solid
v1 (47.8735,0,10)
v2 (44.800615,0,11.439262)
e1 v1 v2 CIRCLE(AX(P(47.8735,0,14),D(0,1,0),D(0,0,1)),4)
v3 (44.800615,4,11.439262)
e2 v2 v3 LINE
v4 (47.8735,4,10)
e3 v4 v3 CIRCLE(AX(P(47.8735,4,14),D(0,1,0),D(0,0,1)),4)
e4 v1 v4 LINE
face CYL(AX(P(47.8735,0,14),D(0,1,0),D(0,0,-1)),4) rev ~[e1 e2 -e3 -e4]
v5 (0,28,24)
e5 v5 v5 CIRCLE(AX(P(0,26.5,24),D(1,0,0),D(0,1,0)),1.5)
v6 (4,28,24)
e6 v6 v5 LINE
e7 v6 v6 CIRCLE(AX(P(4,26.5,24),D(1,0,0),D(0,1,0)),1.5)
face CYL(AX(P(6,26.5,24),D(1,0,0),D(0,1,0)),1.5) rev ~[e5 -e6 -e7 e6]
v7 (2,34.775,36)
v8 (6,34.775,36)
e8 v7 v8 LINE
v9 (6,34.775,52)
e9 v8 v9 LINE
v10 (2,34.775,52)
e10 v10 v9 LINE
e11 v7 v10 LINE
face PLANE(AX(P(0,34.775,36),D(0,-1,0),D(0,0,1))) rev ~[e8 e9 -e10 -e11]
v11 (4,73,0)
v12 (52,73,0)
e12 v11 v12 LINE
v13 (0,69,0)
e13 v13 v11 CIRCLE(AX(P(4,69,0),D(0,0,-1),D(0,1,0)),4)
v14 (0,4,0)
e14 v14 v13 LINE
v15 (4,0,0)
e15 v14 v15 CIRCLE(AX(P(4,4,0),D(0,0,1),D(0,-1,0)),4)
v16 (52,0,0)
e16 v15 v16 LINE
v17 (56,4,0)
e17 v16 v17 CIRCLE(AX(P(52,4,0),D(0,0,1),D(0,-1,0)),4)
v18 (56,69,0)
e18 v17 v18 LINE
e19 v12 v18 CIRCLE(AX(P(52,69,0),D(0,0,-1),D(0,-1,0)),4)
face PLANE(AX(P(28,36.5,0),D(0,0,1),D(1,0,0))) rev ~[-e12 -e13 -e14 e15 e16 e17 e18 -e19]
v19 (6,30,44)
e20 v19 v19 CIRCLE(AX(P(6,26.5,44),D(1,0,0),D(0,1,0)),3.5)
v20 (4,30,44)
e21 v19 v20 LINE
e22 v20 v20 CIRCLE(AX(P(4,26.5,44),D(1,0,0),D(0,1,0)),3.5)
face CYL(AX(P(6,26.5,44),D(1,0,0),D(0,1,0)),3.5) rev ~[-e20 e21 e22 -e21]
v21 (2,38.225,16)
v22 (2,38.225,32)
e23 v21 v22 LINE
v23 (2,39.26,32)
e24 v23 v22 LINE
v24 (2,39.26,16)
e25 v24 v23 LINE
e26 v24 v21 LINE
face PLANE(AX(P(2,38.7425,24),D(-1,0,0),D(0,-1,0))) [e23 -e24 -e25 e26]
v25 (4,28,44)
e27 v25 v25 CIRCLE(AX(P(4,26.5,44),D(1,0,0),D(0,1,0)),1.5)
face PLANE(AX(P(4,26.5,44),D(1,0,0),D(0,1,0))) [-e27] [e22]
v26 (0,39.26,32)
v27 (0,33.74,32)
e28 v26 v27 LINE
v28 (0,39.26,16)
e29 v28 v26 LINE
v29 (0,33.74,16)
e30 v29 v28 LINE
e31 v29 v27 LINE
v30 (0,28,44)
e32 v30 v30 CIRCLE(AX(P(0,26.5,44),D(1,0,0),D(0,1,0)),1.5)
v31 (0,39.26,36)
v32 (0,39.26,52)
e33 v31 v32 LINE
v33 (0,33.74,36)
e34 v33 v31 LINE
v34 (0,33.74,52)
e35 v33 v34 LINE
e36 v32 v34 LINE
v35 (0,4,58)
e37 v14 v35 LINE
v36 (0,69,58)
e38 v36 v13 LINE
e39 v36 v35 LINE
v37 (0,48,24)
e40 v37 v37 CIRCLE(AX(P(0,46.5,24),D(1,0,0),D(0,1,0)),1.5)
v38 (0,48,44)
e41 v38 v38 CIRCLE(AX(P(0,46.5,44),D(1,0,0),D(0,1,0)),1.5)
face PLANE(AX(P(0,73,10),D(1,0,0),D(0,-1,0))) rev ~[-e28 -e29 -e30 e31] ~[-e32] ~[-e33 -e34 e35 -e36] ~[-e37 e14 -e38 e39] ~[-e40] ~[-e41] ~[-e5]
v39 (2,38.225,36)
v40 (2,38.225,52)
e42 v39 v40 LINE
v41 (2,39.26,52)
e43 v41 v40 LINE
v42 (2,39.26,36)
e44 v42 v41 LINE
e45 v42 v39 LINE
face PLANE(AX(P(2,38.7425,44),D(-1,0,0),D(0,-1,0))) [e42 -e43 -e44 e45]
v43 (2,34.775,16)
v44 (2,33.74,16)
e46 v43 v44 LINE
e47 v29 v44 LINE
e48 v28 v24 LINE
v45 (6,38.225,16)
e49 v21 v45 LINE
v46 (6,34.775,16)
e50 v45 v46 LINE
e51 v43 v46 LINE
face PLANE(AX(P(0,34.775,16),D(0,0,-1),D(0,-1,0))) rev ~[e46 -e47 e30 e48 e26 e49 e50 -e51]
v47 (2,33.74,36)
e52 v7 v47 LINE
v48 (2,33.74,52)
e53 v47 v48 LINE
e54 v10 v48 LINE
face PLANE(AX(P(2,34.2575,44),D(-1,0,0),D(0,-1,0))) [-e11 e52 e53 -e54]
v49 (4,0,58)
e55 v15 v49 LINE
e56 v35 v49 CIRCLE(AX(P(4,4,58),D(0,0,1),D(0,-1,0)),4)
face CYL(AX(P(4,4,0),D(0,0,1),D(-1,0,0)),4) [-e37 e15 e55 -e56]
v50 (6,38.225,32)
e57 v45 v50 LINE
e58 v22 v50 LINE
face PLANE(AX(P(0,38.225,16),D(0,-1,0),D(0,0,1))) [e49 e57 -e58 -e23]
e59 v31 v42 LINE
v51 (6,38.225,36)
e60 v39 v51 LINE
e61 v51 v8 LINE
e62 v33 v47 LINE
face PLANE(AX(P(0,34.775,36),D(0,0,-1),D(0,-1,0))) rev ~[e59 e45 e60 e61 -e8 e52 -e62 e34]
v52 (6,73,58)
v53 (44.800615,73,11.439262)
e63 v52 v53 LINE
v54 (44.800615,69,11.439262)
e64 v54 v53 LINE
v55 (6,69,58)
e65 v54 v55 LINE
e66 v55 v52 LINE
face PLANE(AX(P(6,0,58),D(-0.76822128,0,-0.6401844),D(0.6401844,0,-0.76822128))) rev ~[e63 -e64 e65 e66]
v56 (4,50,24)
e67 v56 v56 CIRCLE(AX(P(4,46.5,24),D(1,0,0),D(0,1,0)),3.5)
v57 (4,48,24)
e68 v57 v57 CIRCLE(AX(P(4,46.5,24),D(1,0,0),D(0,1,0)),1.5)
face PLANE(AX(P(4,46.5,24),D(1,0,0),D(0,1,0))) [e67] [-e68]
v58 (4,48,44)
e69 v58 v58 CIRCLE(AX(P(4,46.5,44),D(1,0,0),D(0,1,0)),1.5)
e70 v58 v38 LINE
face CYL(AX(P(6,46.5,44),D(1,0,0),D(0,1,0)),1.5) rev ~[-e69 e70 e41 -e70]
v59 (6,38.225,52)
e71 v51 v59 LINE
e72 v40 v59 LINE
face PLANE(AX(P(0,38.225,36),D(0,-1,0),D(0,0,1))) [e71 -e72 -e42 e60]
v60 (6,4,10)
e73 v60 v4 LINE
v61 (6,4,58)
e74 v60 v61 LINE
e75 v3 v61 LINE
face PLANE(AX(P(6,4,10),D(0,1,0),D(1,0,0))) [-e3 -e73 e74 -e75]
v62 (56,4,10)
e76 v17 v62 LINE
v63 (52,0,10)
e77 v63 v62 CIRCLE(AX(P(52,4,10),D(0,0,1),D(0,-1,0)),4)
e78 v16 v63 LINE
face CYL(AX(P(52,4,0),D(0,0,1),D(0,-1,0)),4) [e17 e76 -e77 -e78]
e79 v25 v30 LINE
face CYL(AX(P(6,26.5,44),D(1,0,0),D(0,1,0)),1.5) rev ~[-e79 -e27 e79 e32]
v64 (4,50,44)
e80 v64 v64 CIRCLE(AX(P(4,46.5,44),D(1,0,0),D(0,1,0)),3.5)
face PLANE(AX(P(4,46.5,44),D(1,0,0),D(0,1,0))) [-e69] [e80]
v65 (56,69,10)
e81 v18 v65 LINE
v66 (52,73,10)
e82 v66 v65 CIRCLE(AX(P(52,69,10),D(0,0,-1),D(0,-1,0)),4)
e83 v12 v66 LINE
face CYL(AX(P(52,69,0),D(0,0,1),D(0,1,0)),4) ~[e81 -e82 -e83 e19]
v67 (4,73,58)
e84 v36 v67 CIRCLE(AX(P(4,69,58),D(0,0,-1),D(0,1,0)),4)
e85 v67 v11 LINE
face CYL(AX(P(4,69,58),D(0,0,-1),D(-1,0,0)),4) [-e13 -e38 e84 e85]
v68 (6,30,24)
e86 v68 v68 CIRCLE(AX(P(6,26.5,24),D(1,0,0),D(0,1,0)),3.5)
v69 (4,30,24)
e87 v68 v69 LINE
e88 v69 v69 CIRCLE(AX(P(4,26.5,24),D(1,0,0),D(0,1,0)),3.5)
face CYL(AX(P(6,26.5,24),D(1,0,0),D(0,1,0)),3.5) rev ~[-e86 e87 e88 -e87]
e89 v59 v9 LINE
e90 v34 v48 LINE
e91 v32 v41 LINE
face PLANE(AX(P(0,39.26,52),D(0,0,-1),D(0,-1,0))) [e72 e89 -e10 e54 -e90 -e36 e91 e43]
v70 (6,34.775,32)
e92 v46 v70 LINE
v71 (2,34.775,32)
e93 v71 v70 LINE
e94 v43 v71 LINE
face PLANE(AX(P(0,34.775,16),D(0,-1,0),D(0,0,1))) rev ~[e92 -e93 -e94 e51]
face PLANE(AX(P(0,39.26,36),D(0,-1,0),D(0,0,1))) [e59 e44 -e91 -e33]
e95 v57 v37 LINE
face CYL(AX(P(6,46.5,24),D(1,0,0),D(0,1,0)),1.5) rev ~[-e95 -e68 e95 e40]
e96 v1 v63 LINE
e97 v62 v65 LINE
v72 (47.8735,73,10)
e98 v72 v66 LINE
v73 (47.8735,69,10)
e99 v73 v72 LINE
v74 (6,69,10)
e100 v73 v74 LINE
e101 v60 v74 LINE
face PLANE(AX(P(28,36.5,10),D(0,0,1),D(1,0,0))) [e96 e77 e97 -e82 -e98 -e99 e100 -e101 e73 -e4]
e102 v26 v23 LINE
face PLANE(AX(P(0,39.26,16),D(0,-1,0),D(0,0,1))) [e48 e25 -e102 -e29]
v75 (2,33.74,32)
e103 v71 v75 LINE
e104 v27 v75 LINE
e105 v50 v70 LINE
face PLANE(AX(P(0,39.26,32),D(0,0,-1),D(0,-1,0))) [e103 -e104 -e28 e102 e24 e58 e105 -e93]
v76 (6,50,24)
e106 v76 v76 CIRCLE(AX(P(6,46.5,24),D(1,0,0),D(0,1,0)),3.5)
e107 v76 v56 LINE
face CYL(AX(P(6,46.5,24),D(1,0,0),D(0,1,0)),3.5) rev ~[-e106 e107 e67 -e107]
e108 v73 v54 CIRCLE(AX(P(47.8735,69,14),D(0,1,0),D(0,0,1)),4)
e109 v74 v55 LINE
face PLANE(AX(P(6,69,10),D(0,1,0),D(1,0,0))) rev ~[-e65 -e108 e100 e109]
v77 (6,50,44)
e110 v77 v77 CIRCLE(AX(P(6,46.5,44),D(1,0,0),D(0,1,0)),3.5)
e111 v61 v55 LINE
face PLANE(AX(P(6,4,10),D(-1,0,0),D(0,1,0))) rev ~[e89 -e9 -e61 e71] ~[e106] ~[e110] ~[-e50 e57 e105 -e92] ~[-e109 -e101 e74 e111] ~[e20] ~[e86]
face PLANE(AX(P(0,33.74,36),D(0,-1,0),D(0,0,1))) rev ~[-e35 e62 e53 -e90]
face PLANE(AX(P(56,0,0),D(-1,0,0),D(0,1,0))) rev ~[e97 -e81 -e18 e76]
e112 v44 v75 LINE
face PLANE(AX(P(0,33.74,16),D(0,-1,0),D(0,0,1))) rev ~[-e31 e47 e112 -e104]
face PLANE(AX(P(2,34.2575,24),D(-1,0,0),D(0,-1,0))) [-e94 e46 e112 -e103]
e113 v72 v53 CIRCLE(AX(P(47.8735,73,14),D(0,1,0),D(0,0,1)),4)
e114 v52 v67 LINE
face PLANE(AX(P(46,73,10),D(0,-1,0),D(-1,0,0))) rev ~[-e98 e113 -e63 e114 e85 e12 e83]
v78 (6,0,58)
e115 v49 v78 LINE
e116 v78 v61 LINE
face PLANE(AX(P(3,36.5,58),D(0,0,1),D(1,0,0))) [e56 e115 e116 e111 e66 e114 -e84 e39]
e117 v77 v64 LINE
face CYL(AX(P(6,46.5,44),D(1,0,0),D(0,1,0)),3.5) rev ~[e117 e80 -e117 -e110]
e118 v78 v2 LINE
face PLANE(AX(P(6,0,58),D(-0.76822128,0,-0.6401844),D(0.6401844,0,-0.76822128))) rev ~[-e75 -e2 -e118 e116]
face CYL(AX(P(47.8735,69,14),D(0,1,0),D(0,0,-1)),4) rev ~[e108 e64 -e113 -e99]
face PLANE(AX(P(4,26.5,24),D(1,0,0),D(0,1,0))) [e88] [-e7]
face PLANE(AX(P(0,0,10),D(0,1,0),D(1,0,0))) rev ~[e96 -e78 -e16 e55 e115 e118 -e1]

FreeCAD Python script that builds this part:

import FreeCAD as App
import Part
import Sketcher
from FreeCAD import Vector
Q = App.Units.Quantity


def edges_at(feature, points):
    """Names of the edges that pass closest to the given points."""
    edges = feature.Shape.Edges
    near = lambda p: min(range(len(edges)), key=lambda i: edges[i].distToShape(Part.Vertex(*p))[0])
    return sorted({f"Edge{near(p) + 1}" for p in points})

doc = App.newDocument("Part")
body = doc.addObject("PartDesign::Body", "Body")

sketch1 = body.newObject("Sketcher::SketchObject", "Sketch")
sketch1.AttachmentSupport = (doc.getObject("XY_Plane"), [""])
sketch1.MapMode = "FlatFace"
sketch1.addGeometry([
    Part.LineSegment(Vector(0, 73, 0), Vector(0, 0, 0)),
    Part.LineSegment(Vector(0, 0, 0), Vector(56, 0, 0)),
    Part.LineSegment(Vector(56, 0, 0), Vector(56, 73, 0)),
    Part.LineSegment(Vector(56, 73, 0), Vector(0, 73, 0)),
], False)
sketch1.addConstraint([
    Sketcher.Constraint("Coincident", 0, 2, 1, 1),
    Sketcher.Constraint("Coincident", 1, 2, 2, 1),
    Sketcher.Constraint("Coincident", 2, 2, 3, 1),
    Sketcher.Constraint("Coincident", 3, 2, 0, 1),
    Sketcher.Constraint("Vertical", 0),
    Sketcher.Constraint("Horizontal", 1),
    Sketcher.Constraint("Vertical", 2),
    Sketcher.Constraint("Horizontal", 3),
    Sketcher.Constraint("Coincident", 0, 2, -1, 1),
    Sketcher.Constraint("DistanceX", 1, 1, 1, 2, Q("56 mm")),
    Sketcher.Constraint("DistanceY", 0, 2, 0, 1, Q("73 mm")),
])
pad1 = body.newObject("PartDesign::Pad", "Pad")
pad1.Profile = sketch1
pad1.Length = 10

sketch2 = body.newObject("Sketcher::SketchObject", "Sketch001")
sketch2.AttachmentSupport = (doc.getObject("XY_Plane"), [""])
sketch2.MapMode = "FlatFace"
sketch2.AttachmentOffset = App.Placement(Vector(0, 0, 10), App.Rotation())
sketch2.addGeometry([
    Part.LineSegment(Vector(0, 73, 0), Vector(0, 0, 0)),
    Part.LineSegment(Vector(0, 0, 0), Vector(46, 0, 0)),
    Part.LineSegment(Vector(46, 0, 0), Vector(46, 4, 0)),
    Part.LineSegment(Vector(46, 4, 0), Vector(6, 4, 0)),
    Part.LineSegment(Vector(6, 4, 0), Vector(6, 69, 0)),
    Part.LineSegment(Vector(6, 69, 0), Vector(46, 69, 0)),
    Part.LineSegment(Vector(46, 69, 0), Vector(46, 73, 0)),
    Part.LineSegment(Vector(46, 73, 0), Vector(0, 73, 0)),
], False)
sketch2.addConstraint([
    Sketcher.Constraint("Coincident", 0, 2, 1, 1),
    Sketcher.Constraint("Coincident", 1, 2, 2, 1),
    Sketcher.Constraint("Coincident", 2, 2, 3, 1),
    Sketcher.Constraint("Coincident", 3, 2, 4, 1),
    Sketcher.Constraint("Coincident", 4, 2, 5, 1),
    Sketcher.Constraint("Coincident", 5, 2, 6, 1),
    Sketcher.Constraint("Coincident", 6, 2, 7, 1),
    Sketcher.Constraint("Coincident", 7, 2, 0, 1),
    Sketcher.Constraint("Vertical", 0),
    Sketcher.Constraint("Horizontal", 1),
    Sketcher.Constraint("Vertical", 2),
    Sketcher.Constraint("Horizontal", 3),
    Sketcher.Constraint("Vertical", 4),
    Sketcher.Constraint("Horizontal", 5),
    Sketcher.Constraint("Vertical", 6),
    Sketcher.Constraint("Horizontal", 7),
    Sketcher.Constraint("Coincident", 0, 2, -1, 1),
    Sketcher.Constraint("Vertical", 2, 2, 5, 2),
    Sketcher.Constraint("Equal", 2, 6),
    Sketcher.Constraint("DistanceX", 1, 1, 1, 2, Q("46 mm")),
    Sketcher.Constraint("DistanceX", 3, 2, 3, 1, Q("40 mm")),
    Sketcher.Constraint("DistanceY", 0, 2, 0, 1, Q("73 mm")),
    Sketcher.Constraint("DistanceY", 2, 1, 2, 2, Q("4 mm")),
])
pad2 = body.newObject("PartDesign::Pad", "Pad001")
pad2.Profile = sketch2
pad2.Length = 48

sketch3 = body.newObject("Sketcher::SketchObject", "Sketch002")
sketch3.AttachmentSupport = (doc.getObject("XZ_Plane"), [""])
sketch3.MapMode = "FlatFace"
sketch3.addGeometry([
    Part.LineSegment(Vector(6, 58, 0), Vector(46, 10, 0)),
    Part.LineSegment(Vector(46, 10, 0), Vector(46, 58, 0)),
    Part.LineSegment(Vector(46, 58, 0), Vector(6, 58, 0)),
], False)
sketch3.addConstraint([
    Sketcher.Constraint("Coincident", 0, 2, 1, 1),
    Sketcher.Constraint("Coincident", 1, 2, 2, 1),
    Sketcher.Constraint("Coincident", 2, 2, 0, 1),
    Sketcher.Constraint("Vertical", 1),
    Sketcher.Constraint("Horizontal", 2),
    Sketcher.Constraint("DistanceX", 2, 2, 2, 1, Q("40 mm")),
    Sketcher.Constraint("DistanceY", 1, 1, 1, 2, Q("48 mm")),
    Sketcher.Constraint("DistanceX", -1, 1, 0, 2, Q("46 mm")),
    Sketcher.Constraint("DistanceY", -1, 1, 0, 2, Q("10 mm")),
])
pocket1 = body.newObject("PartDesign::Pocket", "Pocket")
pocket1.Profile = sketch3
pocket1.Type = "ThroughAll"
doc.recompute()

fillet = body.newObject("PartDesign::Fillet", "Fillet")
fillet.Base = (pocket1, edges_at(pocket1, [
    (0, 0, 29),
    (56, 0, 5),
    (46, 2, 10),
    (46, 71, 10),
    (56, 73, 5),
    (0, 73, 29),
]))
fillet.Radius = 4

sketch4 = body.newObject("Sketcher::SketchObject", "Sketch003")
sketch4.AttachmentSupport = (doc.getObject("YZ_Plane"), [""])
sketch4.MapMode = "FlatFace"
sketch4.addGeometry([
    Part.LineSegment(Vector(39.3, 52, 0), Vector(39.3, 36, 0)),
    Part.LineSegment(Vector(39.3, 36, 0), Vector(38.2, 36, 0)),
    Part.LineSegment(Vector(38.2, 36, 0), Vector(38.2, 52, 0)),
    Part.LineSegment(Vector(38.2, 52, 0), Vector(39.3, 52, 0)),
    Part.LineSegment(Vector(34.8, 52, 0), Vector(34.8, 36, 0)),
    Part.LineSegment(Vector(34.8, 36, 0), Vector(33.7, 36, 0)),
    Part.LineSegment(Vector(33.7, 36, 0), Vector(33.7, 52, 0)),
    Part.LineSegment(Vector(33.7, 52, 0), Vector(34.8, 52, 0)),
    Part.LineSegment(Vector(34.8, 32, 0), Vector(34.8, 16, 0)),
    Part.LineSegment(Vector(34.8, 16, 0), Vector(33.7, 16, 0)),
    Part.LineSegment(Vector(33.7, 16, 0), Vector(33.7, 32, 0)),
    Part.LineSegment(Vector(33.7, 32, 0), Vector(34.8, 32, 0)),
    Part.LineSegment(Vector(39.3, 32, 0), Vector(39.3, 16, 0)),
    Part.LineSegment(Vector(39.3, 16, 0), Vector(38.2, 16, 0)),
    Part.LineSegment(Vector(38.2, 16, 0), Vector(38.2, 32, 0)),
    Part.LineSegment(Vector(38.2, 32, 0), Vector(39.3, 32, 0)),
], False)
sketch4.addConstraint([
    Sketcher.Constraint("Coincident", 0, 2, 1, 1),
    Sketcher.Constraint("Coincident", 1, 2, 2, 1),
    Sketcher.Constraint("Coincident", 2, 2, 3, 1),
    Sketcher.Constraint("Coincident", 3, 2, 0, 1),
    Sketcher.Constraint("Coincident", 4, 2, 5, 1),
    Sketcher.Constraint("Coincident", 5, 2, 6, 1),
    Sketcher.Constraint("Coincident", 6, 2, 7, 1),
    Sketcher.Constraint("Coincident", 7, 2, 4, 1),
    Sketcher.Constraint("Coincident", 8, 2, 9, 1),
    Sketcher.Constraint("Coincident", 9, 2, 10, 1),
    Sketcher.Constraint("Coincident", 10, 2, 11, 1),
    Sketcher.Constraint("Coincident", 11, 2, 8, 1),
    Sketcher.Constraint("Coincident", 12, 2, 13, 1),
    Sketcher.Constraint("Coincident", 13, 2, 14, 1),
    Sketcher.Constraint("Coincident", 14, 2, 15, 1),
    Sketcher.Constraint("Coincident", 15, 2, 12, 1),
    Sketcher.Constraint("Vertical", 0),
    Sketcher.Constraint("Horizontal", 1),
    Sketcher.Constraint("Vertical", 2),
    Sketcher.Constraint("Horizontal", 3),
    Sketcher.Constraint("Vertical", 4),
    Sketcher.Constraint("Horizontal", 5),
    Sketcher.Constraint("Vertical", 6),
    Sketcher.Constraint("Horizontal", 7),
    Sketcher.Constraint("Vertical", 8),
    Sketcher.Constraint("Horizontal", 9),
    Sketcher.Constraint("Vertical", 10),
    Sketcher.Constraint("Horizontal", 11),
    Sketcher.Constraint("Vertical", 12),
    Sketcher.Constraint("Horizontal", 13),
    Sketcher.Constraint("Vertical", 14),
    Sketcher.Constraint("Horizontal", 15),
    Sketcher.Constraint("Horizontal", 1, 2, 4, 2),
    Sketcher.Constraint("Horizontal", 3, 2, 6, 2),
    Sketcher.Constraint("Horizontal", 9, 2, 12, 2),
    Sketcher.Constraint("Horizontal", 11, 2, 14, 2),
    Sketcher.Constraint("Vertical", 7, 2, 8, 2),
    Sketcher.Constraint("Vertical", 6, 2, 9, 2),
    Sketcher.Constraint("Vertical", 3, 2, 12, 2),
    Sketcher.Constraint("Vertical", 2, 2, 13, 2),
    Sketcher.Constraint("Equal", 3, 5),
    Sketcher.Constraint("Equal", 6, 8),
    Sketcher.Constraint("DistanceY", 0, 2, 0, 1, Q("16 mm")),
    Sketcher.Constraint("DistanceY", -1, 1, 0, 2, Q("36 mm")),
    Sketcher.Constraint("DistanceY", -1, 1, 8, 2, Q("16 mm")),
    Sketcher.Constraint("DistanceX", 1, 2, 1, 1, Q("1.035 mm")),
    Sketcher.Constraint("DistanceX", -1, 1, 0, 2, Q("39.26 mm")),
    Sketcher.Constraint("DistanceX", -1, 1, 5, 2, Q("33.74 mm")),
])
pocket2 = body.newObject("PartDesign::Pocket", "Pocket001")
pocket2.Profile = sketch4
pocket2.Length = 2
pocket2.Reversed = True

sketch5 = body.newObject("Sketcher::SketchObject", "Sketch004")
sketch5.AttachmentSupport = (doc.getObject("YZ_Plane"), [""])
sketch5.MapMode = "FlatFace"
sketch5.addGeometry([
    Part.LineSegment(Vector(38.2, 52, 0), Vector(38.2, 36, 0)),
    Part.LineSegment(Vector(38.2, 36, 0), Vector(34.8, 36, 0)),
    Part.LineSegment(Vector(34.8, 36, 0), Vector(34.8, 52, 0)),
    Part.LineSegment(Vector(34.8, 52, 0), Vector(38.2, 52, 0)),
    Part.LineSegment(Vector(38.2, 32, 0), Vector(38.2, 16, 0)),
    Part.LineSegment(Vector(38.2, 16, 0), Vector(34.8, 16, 0)),
    Part.LineSegment(Vector(34.8, 16, 0), Vector(34.8, 32, 0)),
    Part.LineSegment(Vector(34.8, 32, 0), Vector(38.2, 32, 0)),
], False)
sketch5.addConstraint([
    Sketcher.Constraint("Coincident", 0, 2, 1, 1),
    Sketcher.Constraint("Coincident", 1, 2, 2, 1),
    Sketcher.Constraint("Coincident", 2, 2, 3, 1),
    Sketcher.Constraint("Coincident", 3, 2, 0, 1),
    Sketcher.Constraint("Coincident", 4, 2, 5, 1),
    Sketcher.Constraint("Coincident", 5, 2, 6, 1),
    Sketcher.Constraint("Coincident", 6, 2, 7, 1),
    Sketcher.Constraint("Coincident", 7, 2, 4, 1),
    Sketcher.Constraint("Vertical", 0),
    Sketcher.Constraint("Horizontal", 1),
    Sketcher.Constraint("Vertical", 2),
    Sketcher.Constraint("Horizontal", 3),
    Sketcher.Constraint("Vertical", 4),
    Sketcher.Constraint("Horizontal", 5),
    Sketcher.Constraint("Vertical", 6),
    Sketcher.Constraint("Horizontal", 7),
    Sketcher.Constraint("Vertical", 3, 2, 4, 2),
    Sketcher.Constraint("Vertical", 2, 2, 5, 2),
    Sketcher.Constraint("Equal", 2, 4),
    Sketcher.Constraint("DistanceY", 0, 2, 0, 1, Q("16 mm")),
    Sketcher.Constraint("DistanceY", -1, 1, 0, 2, Q("36 mm")),
    Sketcher.Constraint("DistanceY", -1, 1, 4, 2, Q("16 mm")),
    Sketcher.Constraint("DistanceX", 1, 2, 1, 1, Q("3.45 mm")),
    Sketcher.Constraint("DistanceX", -1, 1, 0, 2, Q("38.225 mm")),
])
pocket3 = body.newObject("PartDesign::Pocket", "Pocket002")
pocket3.Profile = sketch5
pocket3.Type = "ThroughAll"
pocket3.Reversed = True

sketch6 = body.newObject("Sketcher::SketchObject", "Sketch005")
sketch6.AttachmentSupport = (doc.getObject("YZ_Plane"), [""])
sketch6.MapMode = "FlatFace"
sketch6.AttachmentOffset = App.Placement(Vector(0, 0, 6), App.Rotation())
sketch6.addGeometry([
    Part.Circle(Vector(26.5, 44, 0), Vector(0, 0, 1), 3.5),
    Part.Circle(Vector(26.5, 44, 0), Vector(0, 0, 1), 1.5),
    Part.Circle(Vector(46.5, 44, 0), Vector(0, 0, 1), 3.5),
    Part.Circle(Vector(46.5, 44, 0), Vector(0, 0, 1), 1.5),
    Part.Circle(Vector(46.5, 24, 0), Vector(0, 0, 1), 3.5),
    Part.Circle(Vector(46.5, 24, 0), Vector(0, 0, 1), 1.5),
    Part.Circle(Vector(26.5, 24, 0), Vector(0, 0, 1), 3.5),
    Part.Circle(Vector(26.5, 24, 0), Vector(0, 0, 1), 1.5),
], False)
sketch6.addConstraint([
    Sketcher.Constraint("Coincident", 1, 3, 0, 3),
    Sketcher.Constraint("Coincident", 3, 3, 2, 3),
    Sketcher.Constraint("Coincident", 5, 3, 4, 3),
    Sketcher.Constraint("Coincident", 7, 3, 6, 3),
    Sketcher.Constraint("Equal", 0, 2),
    Sketcher.Constraint("Equal", 1, 3),
    Sketcher.Constraint("Equal", 2, 4),
    Sketcher.Constraint("Equal", 3, 5),
    Sketcher.Constraint("Equal", 4, 6),
    Sketcher.Constraint("Equal", 5, 7),
    Sketcher.Constraint("Horizontal", 1, 3, 2, 3),
    Sketcher.Constraint("Horizontal", 5, 3, 6, 3),
    Sketcher.Constraint("Vertical", 3, 3, 4, 3),
    Sketcher.Constraint("Vertical", 1, 3, 6, 3),
    Sketcher.Constraint("Diameter", 0, Q("7 mm")),
    Sketcher.Constraint("Diameter", 1, Q("3 mm")),
    Sketcher.Constraint("DistanceY", -1, 1, 0, 3, Q("44 mm")),
    Sketcher.Constraint("DistanceY", -1, 1, 4, 3, Q("24 mm")),
    Sketcher.Constraint("DistanceX", 0, 3, 2, 3, Q("20 mm")),
    Sketcher.Constraint("DistanceX", -1, 1, 0, 3, Q("26.5 mm")),
])
pocket4 = body.newObject("PartDesign::Pocket", "Pocket003")
pocket4.Profile = sketch6
pocket4.Length = 2

sketch7 = body.newObject("Sketcher::SketchObject", "Sketch006")
sketch7.AttachmentSupport = (doc.getObject("YZ_Plane"), [""])
sketch7.MapMode = "FlatFace"
sketch7.AttachmentOffset = App.Placement(Vector(0, 0, 6), App.Rotation())
sketch7.addGeometry([
    Part.Circle(Vector(26.5, 44, 0), Vector(0, 0, 1), 1.5),
    Part.Circle(Vector(46.5, 44, 0), Vector(0, 0, 1), 1.5),
    Part.Circle(Vector(46.5, 24, 0), Vector(0, 0, 1), 1.5),
    Part.Circle(Vector(26.5, 24, 0), Vector(0, 0, 1), 1.5),
], False)
sketch7.addConstraint([
    Sketcher.Constraint("Equal", 0, 1),
    Sketcher.Constraint("Equal", 1, 2),
    Sketcher.Constraint("Equal", 2, 3),
    Sketcher.Constraint("Horizontal", 0, 3, 1, 3),
    Sketcher.Constraint("Horizontal", 2, 3, 3, 3),
    Sketcher.Constraint("Vertical", 1, 3, 2, 3),
    Sketcher.Constraint("Vertical", 0, 3, 3, 3),
    Sketcher.Constraint("Diameter", 0, Q("3 mm")),
    Sketcher.Constraint("DistanceY", -1, 1, 0, 3, Q("44 mm")),
    Sketcher.Constraint("DistanceY", -1, 1, 2, 3, Q("24 mm")),
    Sketcher.Constraint("DistanceX", 0, 3, 1, 3, Q("20 mm")),
    Sketcher.Constraint("DistanceX", -1, 1, 0, 3, Q("26.5 mm")),
])
pocket5 = body.newObject("PartDesign::Pocket", "Pocket004")
pocket5.Profile = sketch7
pocket5.Type = "ThroughAll"

doc.recompute()
